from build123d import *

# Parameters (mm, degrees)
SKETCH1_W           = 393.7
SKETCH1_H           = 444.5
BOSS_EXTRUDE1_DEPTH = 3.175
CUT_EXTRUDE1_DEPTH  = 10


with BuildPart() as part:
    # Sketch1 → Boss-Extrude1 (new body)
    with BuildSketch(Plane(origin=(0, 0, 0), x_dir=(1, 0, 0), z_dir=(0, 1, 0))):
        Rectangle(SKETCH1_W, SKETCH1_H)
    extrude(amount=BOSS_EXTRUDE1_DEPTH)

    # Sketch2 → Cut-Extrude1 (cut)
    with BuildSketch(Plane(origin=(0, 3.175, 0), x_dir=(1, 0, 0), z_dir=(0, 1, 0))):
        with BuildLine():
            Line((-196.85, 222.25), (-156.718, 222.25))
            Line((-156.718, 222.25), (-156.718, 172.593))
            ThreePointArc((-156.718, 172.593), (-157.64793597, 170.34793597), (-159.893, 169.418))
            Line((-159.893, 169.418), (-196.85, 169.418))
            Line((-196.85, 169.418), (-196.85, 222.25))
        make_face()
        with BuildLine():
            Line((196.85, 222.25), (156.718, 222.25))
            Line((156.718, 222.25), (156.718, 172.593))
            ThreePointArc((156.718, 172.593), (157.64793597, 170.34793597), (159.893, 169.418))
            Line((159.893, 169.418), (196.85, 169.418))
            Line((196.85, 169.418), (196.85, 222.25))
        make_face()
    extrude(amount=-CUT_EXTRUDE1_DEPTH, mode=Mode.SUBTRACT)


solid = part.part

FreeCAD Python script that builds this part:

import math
import FreeCAD as App
import Part
import Sketcher
Q = App.Units.Quantity

doc = App.newDocument("Part")
params = doc.addObject("Spreadsheet::Sheet", "Params")
for row, (alias, value) in enumerate([
    ("sketch1_width", "15.5 in"),
    ("sketch1_height", "17.5 in"),
    ("pad1_length", "0.125 in"),
    ("sketch2_radius", "0.125 in"),
    ("sketch2_width", "1.58 in"),
    ("sketch2_height", "2.08 in"),
    ("pocket1_length", "10 mm"),
], start=1):
    params.set(f"A{row}", alias)
    params.set(f"B{row}", "=" + value)
    params.setAlias(f"B{row}", alias)

body = doc.addObject("PartDesign::Body", "Body")

# Sketch on XZ plane
sketch1 = body.newObject("Sketcher::SketchObject", "Sketch")
sketch1.AttachmentSupport = (doc.getObject("XZ_Plane"), [""])
sketch1.MapMode = "FlatFace"
sketch1.addGeometry([
    Part.LineSegment(App.Vector(-197, -222, 0), App.Vector(-197, 222, 0)),
    Part.LineSegment(App.Vector(-197, 222, 0), App.Vector(197, 222, 0)),
    Part.LineSegment(App.Vector(197, 222, 0), App.Vector(197, -222, 0)),
    Part.LineSegment(App.Vector(197, -222, 0), App.Vector(-197, -222, 0)),
], False)
sketch1.addConstraint([
    Sketcher.Constraint("Coincident", 0, 2, 1, 1),
    Sketcher.Constraint("Coincident", 1, 2, 2, 1),
    Sketcher.Constraint("Coincident", 2, 2, 3, 1),
    Sketcher.Constraint("Coincident", 3, 2, 0, 1),
    Sketcher.Constraint("Vertical", 0),
    Sketcher.Constraint("Horizontal", 1),
    Sketcher.Constraint("Vertical", 2),
    Sketcher.Constraint("Horizontal", 3),
    Sketcher.Constraint("Symmetric", 0, 2, 2, 2, -1, 1),
    Sketcher.Constraint("DistanceX", 1, 1, 1, 2, Q("15.5 in")),
    Sketcher.Constraint("DistanceY", 0, 1, 0, 2, Q("17.5 in")),
])
sketch1.setExpression("Constraints[9]", "Params.sketch1_width")
sketch1.setExpression("Constraints[10]", "Params.sketch1_height")
pad1 = body.newObject("PartDesign::Pad", "Pad")
pad1.Profile = sketch1
pad1.setExpression("Length", "Params.pad1_length")
pad1.Reversed = True

# Sketch on XZ plane
sketch2 = body.newObject("Sketcher::SketchObject", "Sketch001")
sketch2.AttachmentSupport = (doc.getObject("XZ_Plane"), [""])
sketch2.MapMode = "FlatFace"
sketch2.AttachmentOffset = App.Placement(App.Vector(0, 0, -0.125 * 25.4), App.Rotation())
sketch2.addGeometry([
    Part.LineSegment(App.Vector(-156.7, -222.2, 0), App.Vector(-196.8, -222.2, 0)),  # 0
    Part.LineSegment(App.Vector(-196.8, -222.2, 0), App.Vector(-196.8, -169.4, 0)),  # 1
    Part.LineSegment(App.Vector(-196.8, -169.4, 0), App.Vector(-159.9, -169.4, 0)),  # 2
    Part.ArcOfCircle(Part.Circle(App.Vector(-159.9, -172.6, 0), App.Vector(0, 0, 1), 3.2), math.radians(0), math.radians(90)),  # 3
    Part.LineSegment(App.Vector(-156.7, -172.6, 0), App.Vector(-156.7, -222.2, 0)),  # 4
    Part.LineSegment(App.Vector(196.8, -222.2, 0), App.Vector(156.7, -222.2, 0)),  # 5
    Part.LineSegment(App.Vector(156.7, -222.2, 0), App.Vector(156.7, -172.6, 0)),  # 6
    Part.ArcOfCircle(Part.Circle(App.Vector(159.9, -172.6, 0), App.Vector(0, 0, 1), 3.2), math.radians(90), math.radians(180)),  # 7
    Part.LineSegment(App.Vector(159.9, -169.4, 0), App.Vector(196.8, -169.4, 0)),  # 8
    Part.LineSegment(App.Vector(196.8, -169.4, 0), App.Vector(196.8, -222.2, 0)),  # 9
], False)
sketch2.addConstraint([
    Sketcher.Constraint("Coincident", 0, 2, 1, 1),
    Sketcher.Constraint("Coincident", 1, 2, 2, 1),
    Sketcher.Constraint("Tangent", 2, 2, 3, 2),
    Sketcher.Constraint("Tangent", 3, 1, 4, 1),
    Sketcher.Constraint("Coincident", 4, 2, 0, 1),
    Sketcher.Constraint("Coincident", 5, 2, 6, 1),
    Sketcher.Constraint("Tangent", 6, 2, 7, 2),
    Sketcher.Constraint("Tangent", 7, 1, 8, 1),
    Sketcher.Constraint("Coincident", 8, 2, 9, 1),
    Sketcher.Constraint("Coincident", 9, 2, 5, 1),
    Sketcher.Constraint("Horizontal", 0),
    Sketcher.Constraint("Vertical", 1),
    Sketcher.Constraint("Horizontal", 2),
    Sketcher.Constraint("Vertical", 4),
    Sketcher.Constraint("Horizontal", 5),
    Sketcher.Constraint("Vertical", 6),
    Sketcher.Constraint("Horizontal", 8),
    Sketcher.Constraint("Vertical", 9),
    Sketcher.Constraint("Equal", 3, 7),
    Sketcher.Constraint("Symmetric", 3, 3, 7, 3, -2),
    Sketcher.Constraint("Symmetric", 0, 2, 9, 2, -2),
    Sketcher.Constraint("Radius", 3, Q("0.125 in")),
    Sketcher.Constraint("DistanceX", 0, 2, 0, 1, Q("1.58 in")),
    Sketcher.Constraint("DistanceY", 1, 1, 1, 2, Q("2.08 in")),
    Sketcher.Constraint("DistanceX", 0, 2, -1, 1, Q("7.75 in")),
    Sketcher.Constraint("DistanceY", 0, 2, -1, 1, Q("8.75 in")),
])
sketch2.setExpression("Constraints[21]", "Params.sketch2_radius")
sketch2.setExpression("Constraints[22]", "Params.sketch2_width")
sketch2.setExpression("Constraints[23]", "Params.sketch2_height")
pocket1 = body.newObject("PartDesign::Pocket", "Pocket")
pocket1.Profile = sketch2
pocket1.setExpression("Length", "Params.pocket1_length")
pocket1.Reversed = True

doc.recompute()
